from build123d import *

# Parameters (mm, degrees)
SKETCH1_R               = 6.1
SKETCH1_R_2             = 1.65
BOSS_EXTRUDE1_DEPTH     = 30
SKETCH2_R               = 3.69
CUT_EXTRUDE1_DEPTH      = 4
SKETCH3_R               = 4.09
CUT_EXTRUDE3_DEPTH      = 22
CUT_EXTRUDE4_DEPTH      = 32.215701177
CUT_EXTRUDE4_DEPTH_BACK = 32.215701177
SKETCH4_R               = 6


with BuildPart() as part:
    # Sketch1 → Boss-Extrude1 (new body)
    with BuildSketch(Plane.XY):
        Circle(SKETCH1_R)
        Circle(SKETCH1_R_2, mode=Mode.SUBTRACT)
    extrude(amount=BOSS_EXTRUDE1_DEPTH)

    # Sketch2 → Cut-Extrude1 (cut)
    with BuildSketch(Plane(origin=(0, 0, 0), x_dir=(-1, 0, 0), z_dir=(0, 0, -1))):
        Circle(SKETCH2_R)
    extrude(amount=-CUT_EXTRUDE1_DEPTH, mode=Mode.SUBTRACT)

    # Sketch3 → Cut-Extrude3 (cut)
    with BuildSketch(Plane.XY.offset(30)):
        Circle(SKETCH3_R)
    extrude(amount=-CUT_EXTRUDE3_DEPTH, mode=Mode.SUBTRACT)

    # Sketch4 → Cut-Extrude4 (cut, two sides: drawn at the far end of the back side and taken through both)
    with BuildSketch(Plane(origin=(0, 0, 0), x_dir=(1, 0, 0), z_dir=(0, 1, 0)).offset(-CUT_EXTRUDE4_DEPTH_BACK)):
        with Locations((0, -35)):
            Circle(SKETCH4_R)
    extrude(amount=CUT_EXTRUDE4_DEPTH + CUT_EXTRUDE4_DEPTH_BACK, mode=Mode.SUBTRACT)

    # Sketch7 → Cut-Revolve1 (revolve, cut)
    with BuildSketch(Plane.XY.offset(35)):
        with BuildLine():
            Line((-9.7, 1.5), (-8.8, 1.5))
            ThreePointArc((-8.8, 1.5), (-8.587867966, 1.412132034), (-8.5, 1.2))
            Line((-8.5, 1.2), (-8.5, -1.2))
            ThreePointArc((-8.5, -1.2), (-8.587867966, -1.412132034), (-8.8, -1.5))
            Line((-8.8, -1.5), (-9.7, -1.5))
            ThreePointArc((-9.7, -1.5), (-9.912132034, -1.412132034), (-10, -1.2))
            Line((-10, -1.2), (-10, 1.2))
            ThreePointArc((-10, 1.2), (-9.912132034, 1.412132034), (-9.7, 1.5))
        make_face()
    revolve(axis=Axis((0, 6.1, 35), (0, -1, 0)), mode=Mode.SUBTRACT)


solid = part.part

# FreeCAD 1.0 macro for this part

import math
import FreeCAD as App
import Part
import Sketcher
from FreeCAD import Vector

doc = App.newDocument("Part")
params = doc.addObject("Spreadsheet::Sheet", "Params")
for row, (alias, value) in enumerate([
    ("sketch1_diameter", "12.2 mm"),
    ("sketch1_diameter2", "3.3 mm"),
    ("pad1_length", "30 mm"),
    ("sketch2_diameter", "7.38 mm"),
    ("pocket1_length", "4 mm"),
    ("sketch3_diameter", "8.18 mm"),
    ("pocket2_length", "22 mm"),
    ("sketch4_diameter", "12 mm"),
    ("sketch5_radius", "0.3 mm"),
    ("sketch5_width", "0.9 mm"),
    ("sketch5_height", "2.4 mm"),
    ("groove_angle", "360 deg"),
], start=1):
    params.set(f"A{row}", alias)
    params.set(f"B{row}", "=" + value)
    params.setAlias(f"B{row}", alias)

body = doc.addObject("PartDesign::Body", "Body")

sketch1 = doc.addObject("Sketcher::SketchObject", "Sketch")
body.addObject(sketch1)
sketch1.AttachmentSupport = (doc.XY_Plane, [""])
sketch1.MapMode = "FlatFace"
sketch1.addGeometry(Part.Circle(Vector(0, 0, 0), Vector(0, 0, 1), 6.1), False)
sketch1.addGeometry(Part.Circle(Vector(0, 0, 0), Vector(0, 0, 1), 1.6), False)
sketch1.addConstraint(Sketcher.Constraint("Coincident", 0, 3, -1, 1))
sketch1.addConstraint(Sketcher.Constraint("Coincident", 1, 3, -1, 1))
sketch1.addConstraint(Sketcher.Constraint("Diameter", 0, 12.2))
sketch1.addConstraint(Sketcher.Constraint("Diameter", 1, 3.3))
sketch1.setExpression("Constraints[2]", "Params.sketch1_diameter")
sketch1.setExpression("Constraints[3]", "Params.sketch1_diameter2")
pad1 = doc.addObject("PartDesign::Pad", "Pad")
body.addObject(pad1)
pad1.Profile = sketch1
pad1.setExpression("Length", "Params.pad1_length")

sketch2 = doc.addObject("Sketcher::SketchObject", "Sketch001")
body.addObject(sketch2)
sketch2.AttachmentSupport = (doc.XY_Plane, [""])
sketch2.MapMode = "FlatFace"
sketch2.addGeometry(Part.Circle(Vector(0, 0, 0), Vector(0, 0, 1), 3.7), False)
sketch2.addConstraint(Sketcher.Constraint("Coincident", 0, 3, -1, 1))
sketch2.addConstraint(Sketcher.Constraint("Diameter", 0, 7.38))
sketch2.setExpression("Constraints[1]", "Params.sketch2_diameter")
pocket1 = doc.addObject("PartDesign::Pocket", "Pocket")
body.addObject(pocket1)
pocket1.Profile = sketch2
pocket1.setExpression("Length", "Params.pocket1_length")
pocket1.Reversed = True

sketch3 = doc.addObject("Sketcher::SketchObject", "Sketch002")
body.addObject(sketch3)
sketch3.AttachmentSupport = (doc.XY_Plane, [""])
sketch3.MapMode = "FlatFace"
sketch3.AttachmentOffset = App.Placement(Vector(0, 0, 30), App.Rotation())
sketch3.addGeometry(Part.Circle(Vector(0, 0, 0), Vector(0, 0, 1), 4.1), False)
sketch3.addConstraint(Sketcher.Constraint("Coincident", 0, 3, -1, 1))
sketch3.addConstraint(Sketcher.Constraint("Diameter", 0, 8.18))
sketch3.setExpression("Constraints[1]", "Params.sketch3_diameter")
pocket2 = doc.addObject("PartDesign::Pocket", "Pocket001")
body.addObject(pocket2)
pocket2.Profile = sketch3
pocket2.setExpression("Length", "Params.pocket2_length")

sketch4 = doc.addObject("Sketcher::SketchObject", "Sketch003")
body.addObject(sketch4)
sketch4.AttachmentSupport = (doc.XZ_Plane, [""])
sketch4.MapMode = "FlatFace"
sketch4.addGeometry(Part.Circle(Vector(0, 35, 0), Vector(0, 0, 1), 6), False)
sketch4.addConstraint(Sketcher.Constraint("PointOnObject", 0, 3, -2))
sketch4.addConstraint(Sketcher.Constraint("Diameter", 0, 12.0))
sketch4.addConstraint(Sketcher.Constraint("DistanceY", -1, 1, 0, 3, 35.0))
sketch4.setExpression("Constraints[1]", "Params.sketch4_diameter")
pocket3 = doc.addObject("PartDesign::Pocket", "Pocket002")
body.addObject(pocket3)
pocket3.Profile = sketch4
pocket3.Type = "ThroughAll"
pocket3.Midplane = True

sketch5 = doc.addObject("Sketcher::SketchObject", "Sketch004")
body.addObject(sketch5)
sketch5.AttachmentSupport = (doc.XY_Plane, [""])
sketch5.MapMode = "FlatFace"
sketch5.AttachmentOffset = App.Placement(Vector(0, 0, 35), App.Rotation())
sketch5.addGeometry(Part.LineSegment(Vector(-8.8, 1.5, 0), Vector(-9.7, 1.5, 0)), False)
sketch5.addGeometry(Part.ArcOfCircle(Part.Circle(Vector(-9.7, 1.2, 0), Vector(0, 0, 1), 0.3), math.radians(90), math.radians(180)), False)
sketch5.addGeometry(Part.LineSegment(Vector(-10, 1.2, 0), Vector(-10, -1.2, 0)), False)
sketch5.addGeometry(Part.ArcOfCircle(Part.Circle(Vector(-9.7, -1.2, 0), Vector(0, 0, 1), 0.3), math.radians(-180), math.radians(-90)), False)
sketch5.addGeometry(Part.LineSegment(Vector(-9.7, -1.5, 0), Vector(-8.8, -1.5, 0)), False)
sketch5.addGeometry(Part.ArcOfCircle(Part.Circle(Vector(-8.8, -1.2, 0), Vector(0, 0, 1), 0.3), math.radians(-90), math.radians(0)), False)
sketch5.addGeometry(Part.LineSegment(Vector(-8.5, -1.2, 0), Vector(-8.5, 1.2, 0)), False)
sketch5.addGeometry(Part.ArcOfCircle(Part.Circle(Vector(-8.8, 1.2, 0), Vector(0, 0, 1), 0.3), math.radians(0), math.radians(90)), False)
sketch5.addConstraint(Sketcher.Constraint("Tangent", 0, 2, 1, 1))
sketch5.addConstraint(Sketcher.Constraint("Tangent", 1, 2, 2, 1))
sketch5.addConstraint(Sketcher.Constraint("Tangent", 2, 2, 3, 1))
sketch5.addConstraint(Sketcher.Constraint("Tangent", 3, 2, 4, 1))
sketch5.addConstraint(Sketcher.Constraint("Tangent", 4, 2, 5, 1))
sketch5.addConstraint(Sketcher.Constraint("Tangent", 5, 2, 6, 1))
sketch5.addConstraint(Sketcher.Constraint("Tangent", 6, 2, 7, 1))
sketch5.addConstraint(Sketcher.Constraint("Tangent", 7, 2, 0, 1))
sketch5.addConstraint(Sketcher.Constraint("Horizontal", 0))
sketch5.addConstraint(Sketcher.Constraint("Vertical", 2))
sketch5.addConstraint(Sketcher.Constraint("Horizontal", 4))
sketch5.addConstraint(Sketcher.Constraint("Vertical", 6))
sketch5.addConstraint(Sketcher.Constraint("Equal", 1, 3))
sketch5.addConstraint(Sketcher.Constraint("Equal", 3, 5))
sketch5.addConstraint(Sketcher.Constraint("Equal", 5, 7))
sketch5.addConstraint(Sketcher.Constraint("Radius", 1, 0.3))
sketch5.addConstraint(Sketcher.Constraint("DistanceX", 0, 2, 0, 1, 0.9))
sketch5.addConstraint(Sketcher.Constraint("DistanceY", 2, 2, 2, 1, 2.4))
sketch5.addConstraint(Sketcher.Constraint("DistanceX", 1, 2, -1, 1, 10.0))
sketch5.addConstraint(Sketcher.Constraint("DistanceY", -1, 1, 1, 3, 1.2))
sketch5.setExpression("Constraints[15]", "Params.sketch5_radius")
sketch5.setExpression("Constraints[16]", "Params.sketch5_width")
sketch5.setExpression("Constraints[17]", "Params.sketch5_height")
groove = doc.addObject("PartDesign::Groove", "Groove")
body.addObject(groove)
groove.Profile = sketch5
groove.ReferenceAxis = (sketch5, ["V_Axis"])
groove.setExpression("Angle", "Params.groove_angle")

doc.recompute()
